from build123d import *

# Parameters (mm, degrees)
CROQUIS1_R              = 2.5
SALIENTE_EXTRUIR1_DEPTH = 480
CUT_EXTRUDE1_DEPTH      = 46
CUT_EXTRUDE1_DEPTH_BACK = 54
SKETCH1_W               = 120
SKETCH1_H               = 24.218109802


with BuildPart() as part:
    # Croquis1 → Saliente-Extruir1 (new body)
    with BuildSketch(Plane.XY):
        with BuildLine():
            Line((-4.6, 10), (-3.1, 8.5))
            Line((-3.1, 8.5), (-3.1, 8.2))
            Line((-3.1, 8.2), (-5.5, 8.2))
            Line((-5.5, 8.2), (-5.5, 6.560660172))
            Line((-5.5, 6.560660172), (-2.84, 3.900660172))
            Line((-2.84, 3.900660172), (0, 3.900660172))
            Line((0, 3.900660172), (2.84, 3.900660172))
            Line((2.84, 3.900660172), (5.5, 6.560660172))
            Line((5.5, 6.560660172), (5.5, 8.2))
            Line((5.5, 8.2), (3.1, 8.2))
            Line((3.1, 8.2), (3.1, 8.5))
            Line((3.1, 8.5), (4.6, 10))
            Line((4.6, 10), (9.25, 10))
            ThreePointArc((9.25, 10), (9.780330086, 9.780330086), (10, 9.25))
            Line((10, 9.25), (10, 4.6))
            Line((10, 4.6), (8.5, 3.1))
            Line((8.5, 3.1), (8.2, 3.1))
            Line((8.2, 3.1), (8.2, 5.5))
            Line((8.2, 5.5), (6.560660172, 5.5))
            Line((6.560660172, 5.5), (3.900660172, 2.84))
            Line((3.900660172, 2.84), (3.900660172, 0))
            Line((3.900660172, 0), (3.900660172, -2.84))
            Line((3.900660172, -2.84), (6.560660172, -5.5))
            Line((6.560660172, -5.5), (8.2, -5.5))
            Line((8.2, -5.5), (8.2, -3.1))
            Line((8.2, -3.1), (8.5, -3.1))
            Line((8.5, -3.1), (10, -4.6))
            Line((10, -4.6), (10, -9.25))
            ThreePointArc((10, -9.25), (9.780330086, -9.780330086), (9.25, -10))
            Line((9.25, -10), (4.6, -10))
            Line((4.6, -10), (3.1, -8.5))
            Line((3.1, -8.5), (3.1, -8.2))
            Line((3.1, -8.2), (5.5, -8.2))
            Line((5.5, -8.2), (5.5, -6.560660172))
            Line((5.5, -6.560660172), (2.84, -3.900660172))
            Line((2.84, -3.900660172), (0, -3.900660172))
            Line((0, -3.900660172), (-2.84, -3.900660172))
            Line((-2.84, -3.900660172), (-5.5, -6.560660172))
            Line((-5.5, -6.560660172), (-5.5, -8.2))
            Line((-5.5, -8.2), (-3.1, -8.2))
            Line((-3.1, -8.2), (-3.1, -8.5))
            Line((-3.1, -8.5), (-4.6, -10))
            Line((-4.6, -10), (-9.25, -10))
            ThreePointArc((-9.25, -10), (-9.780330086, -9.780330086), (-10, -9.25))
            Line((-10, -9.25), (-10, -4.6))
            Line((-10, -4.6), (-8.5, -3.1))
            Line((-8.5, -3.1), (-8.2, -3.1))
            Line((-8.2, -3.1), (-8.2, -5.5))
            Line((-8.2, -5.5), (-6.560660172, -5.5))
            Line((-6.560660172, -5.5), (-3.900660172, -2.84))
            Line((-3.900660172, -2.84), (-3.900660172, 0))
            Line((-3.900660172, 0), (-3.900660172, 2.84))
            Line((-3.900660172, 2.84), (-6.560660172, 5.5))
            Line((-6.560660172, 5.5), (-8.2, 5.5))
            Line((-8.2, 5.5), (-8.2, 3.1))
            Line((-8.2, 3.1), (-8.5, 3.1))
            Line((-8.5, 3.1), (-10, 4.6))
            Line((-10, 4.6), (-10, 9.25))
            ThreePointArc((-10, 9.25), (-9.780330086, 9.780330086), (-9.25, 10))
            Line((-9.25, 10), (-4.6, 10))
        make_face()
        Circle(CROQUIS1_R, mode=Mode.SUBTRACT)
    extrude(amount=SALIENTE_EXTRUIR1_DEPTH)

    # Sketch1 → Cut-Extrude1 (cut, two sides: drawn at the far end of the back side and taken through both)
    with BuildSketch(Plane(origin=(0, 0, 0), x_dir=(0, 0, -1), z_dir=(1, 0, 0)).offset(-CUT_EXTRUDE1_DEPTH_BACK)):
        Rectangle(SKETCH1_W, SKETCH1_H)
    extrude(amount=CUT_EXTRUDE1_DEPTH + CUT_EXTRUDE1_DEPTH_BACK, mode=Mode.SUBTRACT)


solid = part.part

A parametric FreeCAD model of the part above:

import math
import FreeCAD as App
import Part
import Sketcher


def add_polygon(sketch, points):
    """Adds a closed chain of lines whose ends are joined by coincident constraints."""
    first, n = sketch.GeometryCount, len(points)
    for a, b in zip(points, points[1:] + points[:1]):
        sketch.addGeometry(Part.LineSegment(App.Vector(*a, 0), App.Vector(*b, 0)), False)
    for i in range(n):
        sketch.addConstraint(Sketcher.Constraint("Coincident", first + i, 2, first + (i + 1) % n, 1))

doc = App.newDocument("Part")
body = doc.addObject("PartDesign::Body", "Body")

sketch1 = body.newObject("Sketcher::SketchObject", "Sketch")
sketch1.AttachmentSupport = (doc.getObject("XY_Plane"), [""])
sketch1.MapMode = "FlatFace"
sketch1.addGeometry([
    Part.LineSegment(App.Vector(-3.1, 8.5, 0), App.Vector(-4.6, 10, 0)),
    Part.LineSegment(App.Vector(-4.6, 10, 0), App.Vector(-9.25, 10, 0)),
    Part.ArcOfCircle(Part.Circle(App.Vector(-9.25, 9.25, 0), App.Vector(0, 0, 1), 0.75), math.radians(90), math.radians(180)),
    Part.LineSegment(App.Vector(-10, 9.25, 0), App.Vector(-10, 4.6, 0)),
    Part.LineSegment(App.Vector(-10, 4.6, 0), App.Vector(-8.5, 3.1, 0)),
    Part.LineSegment(App.Vector(-8.5, 3.1, 0), App.Vector(-8.2, 3.1, 0)),
    Part.LineSegment(App.Vector(-8.2, 3.1, 0), App.Vector(-8.2, 5.5, 0)),
    Part.LineSegment(App.Vector(-8.2, 5.5, 0), App.Vector(-6.56, 5.5, 0)),
    Part.LineSegment(App.Vector(-6.56, 5.5, 0), App.Vector(-3.9, 2.84, 0)),
    Part.LineSegment(App.Vector(-3.9, 2.84, 0), App.Vector(-3.9, -2.84, 0)),
    Part.LineSegment(App.Vector(-3.9, -2.84, 0), App.Vector(-6.56, -5.5, 0)),
    Part.LineSegment(App.Vector(-6.56, -5.5, 0), App.Vector(-8.2, -5.5, 0)),
    Part.LineSegment(App.Vector(-8.2, -5.5, 0), App.Vector(-8.2, -3.1, 0)),
    Part.LineSegment(App.Vector(-8.2, -3.1, 0), App.Vector(-8.5, -3.1, 0)),
    Part.LineSegment(App.Vector(-8.5, -3.1, 0), App.Vector(-10, -4.6, 0)),
    Part.LineSegment(App.Vector(-10, -4.6, 0), App.Vector(-10, -9.25, 0)),
    Part.ArcOfCircle(Part.Circle(App.Vector(-9.25, -9.25, 0), App.Vector(0, 0, 1), 0.75), math.radians(180), math.radians(270)),
    Part.LineSegment(App.Vector(-9.25, -10, 0), App.Vector(-4.6, -10, 0)),
    Part.LineSegment(App.Vector(-4.6, -10, 0), App.Vector(-3.1, -8.5, 0)),
    Part.LineSegment(App.Vector(-3.1, -8.5, 0), App.Vector(-3.1, -8.2, 0)),
    Part.LineSegment(App.Vector(-3.1, -8.2, 0), App.Vector(-5.5, -8.2, 0)),
    Part.LineSegment(App.Vector(-5.5, -8.2, 0), App.Vector(-5.5, -6.56, 0)),
    Part.LineSegment(App.Vector(-5.5, -6.56, 0), App.Vector(-2.84, -3.9, 0)),
    Part.LineSegment(App.Vector(-2.84, -3.9, 0), App.Vector(2.84, -3.9, 0)),
    Part.LineSegment(App.Vector(2.84, -3.9, 0), App.Vector(5.5, -6.56, 0)),
    Part.LineSegment(App.Vector(5.5, -6.56, 0), App.Vector(5.5, -8.2, 0)),
    Part.LineSegment(App.Vector(5.5, -8.2, 0), App.Vector(3.1, -8.2, 0)),
    Part.LineSegment(App.Vector(3.1, -8.2, 0), App.Vector(3.1, -8.5, 0)),
    Part.LineSegment(App.Vector(3.1, -8.5, 0), App.Vector(4.6, -10, 0)),
    Part.LineSegment(App.Vector(4.6, -10, 0), App.Vector(9.25, -10, 0)),
    Part.ArcOfCircle(Part.Circle(App.Vector(9.25, -9.25, 0), App.Vector(0, 0, 1), 0.75), math.radians(-90), math.radians(0)),
    Part.LineSegment(App.Vector(10, -9.25, 0), App.Vector(10, -4.6, 0)),
    Part.LineSegment(App.Vector(10, -4.6, 0), App.Vector(8.5, -3.1, 0)),
    Part.LineSegment(App.Vector(8.5, -3.1, 0), App.Vector(8.2, -3.1, 0)),
    Part.LineSegment(App.Vector(8.2, -3.1, 0), App.Vector(8.2, -5.5, 0)),
    Part.LineSegment(App.Vector(8.2, -5.5, 0), App.Vector(6.56, -5.5, 0)),
    Part.LineSegment(App.Vector(6.56, -5.5, 0), App.Vector(3.9, -2.84, 0)),
    Part.LineSegment(App.Vector(3.9, -2.84, 0), App.Vector(3.9, 2.84, 0)),
    Part.LineSegment(App.Vector(3.9, 2.84, 0), App.Vector(6.56, 5.5, 0)),
    Part.LineSegment(App.Vector(6.56, 5.5, 0), App.Vector(8.2, 5.5, 0)),
    Part.LineSegment(App.Vector(8.2, 5.5, 0), App.Vector(8.2, 3.1, 0)),
    Part.LineSegment(App.Vector(8.2, 3.1, 0), App.Vector(8.5, 3.1, 0)),
    Part.LineSegment(App.Vector(8.5, 3.1, 0), App.Vector(10, 4.6, 0)),
    Part.LineSegment(App.Vector(10, 4.6, 0), App.Vector(10, 9.25, 0)),
    Part.ArcOfCircle(Part.Circle(App.Vector(9.25, 9.25, 0), App.Vector(0, 0, 1), 0.75), math.radians(0), math.radians(90)),
    Part.LineSegment(App.Vector(9.25, 10, 0), App.Vector(4.6, 10, 0)),
    Part.LineSegment(App.Vector(4.6, 10, 0), App.Vector(3.1, 8.5, 0)),
    Part.LineSegment(App.Vector(3.1, 8.5, 0), App.Vector(3.1, 8.2, 0)),
    Part.LineSegment(App.Vector(3.1, 8.2, 0), App.Vector(5.5, 8.2, 0)),
    Part.LineSegment(App.Vector(5.5, 8.2, 0), App.Vector(5.5, 6.56, 0)),
    Part.LineSegment(App.Vector(5.5, 6.56, 0), App.Vector(2.84, 3.9, 0)),
    Part.LineSegment(App.Vector(2.84, 3.9, 0), App.Vector(-2.84, 3.9, 0)),
    Part.LineSegment(App.Vector(-2.84, 3.9, 0), App.Vector(-5.5, 6.56, 0)),
    Part.LineSegment(App.Vector(-5.5, 6.56, 0), App.Vector(-5.5, 8.2, 0)),
    Part.LineSegment(App.Vector(-5.5, 8.2, 0), App.Vector(-3.1, 8.2, 0)),
    Part.LineSegment(App.Vector(-3.1, 8.2, 0), App.Vector(-3.1, 8.5, 0)),
    Part.Circle(App.Vector(0, 0, 0), App.Vector(0, 0, 1), 2.5),
], False)
sketch1.addConstraint([
    Sketcher.Constraint("Coincident", 0, 2, 1, 1),
    Sketcher.Constraint("Tangent", 1, 2, 2, 1),
    Sketcher.Constraint("Tangent", 2, 2, 3, 1),
    Sketcher.Constraint("Coincident", 3, 2, 4, 1),
    Sketcher.Constraint("Coincident", 4, 2, 5, 1),
    Sketcher.Constraint("Coincident", 5, 2, 6, 1),
    Sketcher.Constraint("Coincident", 6, 2, 7, 1),
    Sketcher.Constraint("Coincident", 7, 2, 8, 1),
    Sketcher.Constraint("Coincident", 8, 2, 9, 1),
    Sketcher.Constraint("Coincident", 9, 2, 10, 1),
    Sketcher.Constraint("Coincident", 10, 2, 11, 1),
    Sketcher.Constraint("Coincident", 11, 2, 12, 1),
    Sketcher.Constraint("Coincident", 12, 2, 13, 1),
    Sketcher.Constraint("Coincident", 13, 2, 14, 1),
    Sketcher.Constraint("Coincident", 14, 2, 15, 1),
    Sketcher.Constraint("Tangent", 15, 2, 16, 1),
    Sketcher.Constraint("Tangent", 16, 2, 17, 1),
    Sketcher.Constraint("Coincident", 17, 2, 18, 1),
    Sketcher.Constraint("Coincident", 18, 2, 19, 1),
    Sketcher.Constraint("Coincident", 19, 2, 20, 1),
    Sketcher.Constraint("Coincident", 20, 2, 21, 1),
    Sketcher.Constraint("Coincident", 21, 2, 22, 1),
    Sketcher.Constraint("Coincident", 22, 2, 23, 1),
    Sketcher.Constraint("Coincident", 23, 2, 24, 1),
    Sketcher.Constraint("Coincident", 24, 2, 25, 1),
    Sketcher.Constraint("Coincident", 25, 2, 26, 1),
    Sketcher.Constraint("Coincident", 26, 2, 27, 1),
    Sketcher.Constraint("Coincident", 27, 2, 28, 1),
    Sketcher.Constraint("Coincident", 28, 2, 29, 1),
    Sketcher.Constraint("Tangent", 29, 2, 30, 1),
    Sketcher.Constraint("Tangent", 30, 2, 31, 1),
    Sketcher.Constraint("Coincident", 31, 2, 32, 1),
    Sketcher.Constraint("Coincident", 32, 2, 33, 1),
    Sketcher.Constraint("Coincident", 33, 2, 34, 1),
    Sketcher.Constraint("Coincident", 34, 2, 35, 1),
    Sketcher.Constraint("Coincident", 35, 2, 36, 1),
    Sketcher.Constraint("Coincident", 36, 2, 37, 1),
    Sketcher.Constraint("Coincident", 37, 2, 38, 1),
    Sketcher.Constraint("Coincident", 38, 2, 39, 1),
    Sketcher.Constraint("Coincident", 39, 2, 40, 1),
    Sketcher.Constraint("Coincident", 40, 2, 41, 1),
    Sketcher.Constraint("Coincident", 41, 2, 42, 1),
    Sketcher.Constraint("Coincident", 42, 2, 43, 1),
    Sketcher.Constraint("Tangent", 43, 2, 44, 1),
    Sketcher.Constraint("Tangent", 44, 2, 45, 1),
    Sketcher.Constraint("Coincident", 45, 2, 46, 1),
    Sketcher.Constraint("Coincident", 46, 2, 47, 1),
    Sketcher.Constraint("Coincident", 47, 2, 48, 1),
    Sketcher.Constraint("Coincident", 48, 2, 49, 1),
    Sketcher.Constraint("Coincident", 49, 2, 50, 1),
    Sketcher.Constraint("Coincident", 50, 2, 51, 1),
    Sketcher.Constraint("Coincident", 51, 2, 52, 1),
    Sketcher.Constraint("Coincident", 52, 2, 53, 1),
    Sketcher.Constraint("Coincident", 53, 2, 54, 1),
    Sketcher.Constraint("Coincident", 54, 2, 55, 1),
    Sketcher.Constraint("Coincident", 55, 2, 0, 1),
    Sketcher.Constraint("Horizontal", 1),
    Sketcher.Constraint("Vertical", 3),
    Sketcher.Constraint("Horizontal", 5),
    Sketcher.Constraint("Vertical", 6),
    Sketcher.Constraint("Horizontal", 7),
    Sketcher.Constraint("Vertical", 9),
    Sketcher.Constraint("Horizontal", 11),
    Sketcher.Constraint("Vertical", 12),
    Sketcher.Constraint("Horizontal", 13),
    Sketcher.Constraint("Vertical", 15),
    Sketcher.Constraint("Horizontal", 17),
    Sketcher.Constraint("Vertical", 19),
    Sketcher.Constraint("Horizontal", 20),
    Sketcher.Constraint("Vertical", 21),
    Sketcher.Constraint("Horizontal", 23),
    Sketcher.Constraint("Vertical", 25),
    Sketcher.Constraint("Horizontal", 26),
    Sketcher.Constraint("Vertical", 27),
    Sketcher.Constraint("Horizontal", 29),
    Sketcher.Constraint("Vertical", 31),
    Sketcher.Constraint("Horizontal", 33),
    Sketcher.Constraint("Vertical", 34),
    Sketcher.Constraint("Horizontal", 35),
    Sketcher.Constraint("Vertical", 37),
    Sketcher.Constraint("Horizontal", 39),
    Sketcher.Constraint("Vertical", 40),
    Sketcher.Constraint("Horizontal", 41),
    Sketcher.Constraint("Vertical", 43),
    Sketcher.Constraint("Horizontal", 45),
    Sketcher.Constraint("Vertical", 47),
    Sketcher.Constraint("Horizontal", 48),
    Sketcher.Constraint("Vertical", 49),
    Sketcher.Constraint("Horizontal", 51),
    Sketcher.Constraint("Vertical", 53),
    Sketcher.Constraint("Horizontal", 54),
    Sketcher.Constraint("Vertical", 55),
    Sketcher.Constraint("Coincident", 56, 3, -1, 1),
    Sketcher.Constraint("Equal", 2, 16),
    Sketcher.Constraint("Equal", 16, 30),
    Sketcher.Constraint("Equal", 30, 44),
    Sketcher.Constraint("Symmetric", 2, 3, 30, 3, -1, 1),
    Sketcher.Constraint("Symmetric", 16, 3, 44, 3, -1, 1),
    Sketcher.Constraint("Symmetric", 4, 2, 32, 2, -1, 1),
    Sketcher.Constraint("Symmetric", 6, 2, 34, 2, -1, 1),
    Sketcher.Constraint("Symmetric", 8, 2, 36, 2, -1, 1),
    Sketcher.Constraint("Symmetric", 10, 2, 38, 2, -1, 1),
    Sketcher.Constraint("Symmetric", 12, 2, 40, 2, -1, 1),
    Sketcher.Constraint("Symmetric", 18, 2, 46, 2, -1, 1),
    Sketcher.Constraint("Symmetric", 20, 2, 48, 2, -1, 1),
    Sketcher.Constraint("Symmetric", 22, 2, 50, 2, -1, 1),
    Sketcher.Constraint("Symmetric", 24, 2, 52, 2, -1, 1),
    Sketcher.Constraint("Symmetric", 26, 2, 54, 2, -1, 1),
    Sketcher.Constraint("Symmetric", 16, 3, 30, 3, -2),
    Sketcher.Constraint("Symmetric", 21, 2, 24, 2, -2),
    Sketcher.Constraint("Symmetric", 19, 2, 26, 2, -2),
    Sketcher.Constraint("Symmetric", 13, 2, 32, 2, -2),
    Sketcher.Constraint("Symmetric", 11, 2, 34, 2, -2),
    Sketcher.Constraint("Parallel", 0, 4),
    Sketcher.Constraint("Parallel", 4, 8),
    Sketcher.Constraint("Perpendicular", 8, 10),
    Sketcher.Constraint("Parallel", 10, 14),
    Sketcher.Constraint("Parallel", 14, 18),
    Sketcher.Constraint("Parallel", 18, 22),
    Sketcher.Constraint("Perpendicular", 22, 24),
    Sketcher.Constraint("Parallel", 24, 28),
    Sketcher.Constraint("Parallel", 28, 32),
    Sketcher.Constraint("Parallel", 32, 36),
    Sketcher.Constraint("Perpendicular", 36, 38),
    Sketcher.Constraint("Parallel", 38, 42),
    Sketcher.Constraint("Parallel", 42, 46),
    Sketcher.Constraint("Parallel", 46, 50),
    Sketcher.Constraint("Perpendicular", 50, 52),
    Sketcher.Constraint("Horizontal", 18, 2, 27, 2),
    Sketcher.Constraint("Horizontal", 14, 2, 31, 2),
    Sketcher.Constraint("Horizontal", 9, 2, 36, 2),
    Sketcher.Constraint("Horizontal", 3, 2, 42, 2),
    Sketcher.Constraint("Horizontal", 46, 2, 55, 2),
    Sketcher.Constraint("Equal", 45, 3),
    Sketcher.Constraint("Equal", 54, 6),
    Sketcher.Constraint("Equal", 51, 9),
    Sketcher.Constraint("Equal", 41, 19),
    Sketcher.Constraint("Equal", 39, 21),
    Sketcher.Constraint("Equal", 0, 4),
    Sketcher.Constraint("Equal", 10, 22),
    Sketcher.Constraint("Diameter", 56, 5.0),
    Sketcher.Constraint("Radius", 2, 0.75),
    Sketcher.Constraint("DistanceX", 5, 1, 5, 2, 0.3),
    Sketcher.Constraint("DistanceX", 20, 2, 20, 1, 2.4),
    Sketcher.Constraint("DistanceY", -1, 1, 0, 2, 10.0),
    Sketcher.Constraint("DistanceX", 1, 2, 1, 1, 4.65),
    Sketcher.Constraint("DistanceX", 23, 1, 23, 2, 5.68),
    Sketcher.Constraint("DistanceX", 4, 2, -1, 1, 8.5),
    Sketcher.Constraint("DistanceX", 7, 1, 7, 2, 1.63934),
])
pad1 = body.newObject("PartDesign::Pad", "Pad")
pad1.Profile = sketch1
pad1.Length = 480

sketch2 = body.newObject("Sketcher::SketchObject", "Sketch001")
sketch2.AttachmentSupport = (doc.getObject("YZ_Plane"), [""])
sketch2.MapMode = "FlatFace"
add_polygon(sketch2, [(12, 60), (-12, 60), (-12, -60), (12, -60)])
sketch2.addConstraint([
    Sketcher.Constraint("Horizontal", 0),
    Sketcher.Constraint("Vertical", 1),
    Sketcher.Constraint("Horizontal", 2),
    Sketcher.Constraint("Vertical", 3),
    Sketcher.Constraint("Symmetric", 0, 2, 2, 2, -1, 1),
    Sketcher.Constraint("DistanceY", 1, 2, 1, 1, 120.0),
    Sketcher.Constraint("DistanceX", 0, 2, 0, 1, 24.21811),
])
pocket1 = body.newObject("PartDesign::Pocket", "Pocket")
pocket1.Profile = sketch2
pocket1.Type = "ThroughAll"
pocket1.Midplane = True

doc.recompute()
